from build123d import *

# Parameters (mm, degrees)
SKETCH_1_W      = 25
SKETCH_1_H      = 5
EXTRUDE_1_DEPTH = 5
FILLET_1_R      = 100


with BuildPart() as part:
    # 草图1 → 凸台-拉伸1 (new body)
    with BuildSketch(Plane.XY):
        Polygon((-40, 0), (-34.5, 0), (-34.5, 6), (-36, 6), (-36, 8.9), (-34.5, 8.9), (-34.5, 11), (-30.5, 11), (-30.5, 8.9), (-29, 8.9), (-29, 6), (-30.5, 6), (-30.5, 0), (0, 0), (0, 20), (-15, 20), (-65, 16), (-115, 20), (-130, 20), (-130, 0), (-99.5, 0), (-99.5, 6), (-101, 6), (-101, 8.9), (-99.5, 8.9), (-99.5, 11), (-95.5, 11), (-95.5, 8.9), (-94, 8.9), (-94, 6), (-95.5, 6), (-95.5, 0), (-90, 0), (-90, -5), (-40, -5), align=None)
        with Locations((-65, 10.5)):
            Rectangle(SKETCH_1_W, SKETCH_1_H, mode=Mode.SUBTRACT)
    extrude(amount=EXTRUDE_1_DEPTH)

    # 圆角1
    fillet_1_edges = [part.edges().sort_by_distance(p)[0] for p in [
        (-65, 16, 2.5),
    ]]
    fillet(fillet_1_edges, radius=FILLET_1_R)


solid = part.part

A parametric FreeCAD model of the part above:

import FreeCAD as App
import Part
import Sketcher

V = App.Vector
Q = App.Units.Quantity


def edges_at(feature, points):
    """Names of the edges that pass closest to the given points."""
    edges = feature.Shape.Edges
    near = lambda p: min(range(len(edges)), key=lambda i: edges[i].distToShape(Part.Vertex(*p))[0])
    return sorted({f"Edge{near(p) + 1}" for p in points})

doc = App.newDocument("Part")
body = doc.addObject("PartDesign::Body", "Body")

# Sketch on XY plane
sketch1 = body.newObject("Sketcher::SketchObject", "Sketch")
sketch1.AttachmentSupport = (doc.getObject("XY_Plane"), [""])
sketch1.MapMode = "FlatFace"
sketch1.addGeometry([
    Part.LineSegment(V(-40, 0, 0), V(-34.5, 0, 0)),  # 0
    Part.LineSegment(V(-34.5, 0, 0), V(-34.5, 6, 0)),  # 1
    Part.LineSegment(V(-34.5, 6, 0), V(-36, 6, 0)),  # 2
    Part.LineSegment(V(-36, 6, 0), V(-36, 8.9, 0)),  # 3
    Part.LineSegment(V(-36, 8.9, 0), V(-34.5, 8.9, 0)),  # 4
    Part.LineSegment(V(-34.5, 8.9, 0), V(-34.5, 11, 0)),  # 5
    Part.LineSegment(V(-34.5, 11, 0), V(-30.5, 11, 0)),  # 6
    Part.LineSegment(V(-30.5, 11, 0), V(-30.5, 8.9, 0)),  # 7
    Part.LineSegment(V(-30.5, 8.9, 0), V(-29, 8.9, 0)),  # 8
    Part.LineSegment(V(-29, 8.9, 0), V(-29, 6, 0)),  # 9
    Part.LineSegment(V(-29, 6, 0), V(-30.5, 6, 0)),  # 10
    Part.LineSegment(V(-30.5, 6, 0), V(-30.5, 0, 0)),  # 11
    Part.LineSegment(V(-30.5, 0, 0), V(0, 0, 0)),  # 12
    Part.LineSegment(V(0, 0, 0), V(0, 20, 0)),  # 13
    Part.LineSegment(V(0, 20, 0), V(-15, 20, 0)),  # 14
    Part.LineSegment(V(-15, 20, 0), V(-65, 16, 0)),  # 15
    Part.LineSegment(V(-65, 16, 0), V(-115, 20, 0)),  # 16
    Part.LineSegment(V(-115, 20, 0), V(-130, 20, 0)),  # 17
    Part.LineSegment(V(-130, 20, 0), V(-130, 0, 0)),  # 18
    Part.LineSegment(V(-130, 0, 0), V(-99.5, 0, 0)),  # 19
    Part.LineSegment(V(-99.5, 0, 0), V(-99.5, 6, 0)),  # 20
    Part.LineSegment(V(-99.5, 6, 0), V(-101, 6, 0)),  # 21
    Part.LineSegment(V(-101, 6, 0), V(-101, 8.9, 0)),  # 22
    Part.LineSegment(V(-101, 8.9, 0), V(-99.5, 8.9, 0)),  # 23
    Part.LineSegment(V(-99.5, 8.9, 0), V(-99.5, 11, 0)),  # 24
    Part.LineSegment(V(-99.5, 11, 0), V(-95.5, 11, 0)),  # 25
    Part.LineSegment(V(-95.5, 11, 0), V(-95.5, 8.9, 0)),  # 26
    Part.LineSegment(V(-95.5, 8.9, 0), V(-94, 8.9, 0)),  # 27
    Part.LineSegment(V(-94, 8.9, 0), V(-94, 6, 0)),  # 28
    Part.LineSegment(V(-94, 6, 0), V(-95.5, 6, 0)),  # 29
    Part.LineSegment(V(-95.5, 6, 0), V(-95.5, 0, 0)),  # 30
    Part.LineSegment(V(-95.5, 0, 0), V(-90, 0, 0)),  # 31
    Part.LineSegment(V(-90, 0, 0), V(-90, -5, 0)),  # 32
    Part.LineSegment(V(-90, -5, 0), V(-40, -5, 0)),  # 33
    Part.LineSegment(V(-40, -5, 0), V(-40, 0, 0)),  # 34
    Part.LineSegment(V(-52.5, 8, 0), V(-77.5, 8, 0)),  # 35
    Part.LineSegment(V(-77.5, 8, 0), V(-77.5, 13, 0)),  # 36
    Part.LineSegment(V(-77.5, 13, 0), V(-52.5, 13, 0)),  # 37
    Part.LineSegment(V(-52.5, 13, 0), V(-52.5, 8, 0)),  # 38
], False)
sketch1.addConstraint([
    Sketcher.Constraint("Coincident", 0, 2, 1, 1),
    Sketcher.Constraint("Coincident", 1, 2, 2, 1),
    Sketcher.Constraint("Coincident", 2, 2, 3, 1),
    Sketcher.Constraint("Coincident", 3, 2, 4, 1),
    Sketcher.Constraint("Coincident", 4, 2, 5, 1),
    Sketcher.Constraint("Coincident", 5, 2, 6, 1),
    Sketcher.Constraint("Coincident", 6, 2, 7, 1),
    Sketcher.Constraint("Coincident", 7, 2, 8, 1),
    Sketcher.Constraint("Coincident", 8, 2, 9, 1),
    Sketcher.Constraint("Coincident", 9, 2, 10, 1),
    Sketcher.Constraint("Coincident", 10, 2, 11, 1),
    Sketcher.Constraint("Coincident", 11, 2, 12, 1),
    Sketcher.Constraint("Coincident", 12, 2, 13, 1),
    Sketcher.Constraint("Coincident", 13, 2, 14, 1),
    Sketcher.Constraint("Coincident", 14, 2, 15, 1),
    Sketcher.Constraint("Coincident", 15, 2, 16, 1),
    Sketcher.Constraint("Coincident", 16, 2, 17, 1),
    Sketcher.Constraint("Coincident", 17, 2, 18, 1),
    Sketcher.Constraint("Coincident", 18, 2, 19, 1),
    Sketcher.Constraint("Coincident", 19, 2, 20, 1),
    Sketcher.Constraint("Coincident", 20, 2, 21, 1),
    Sketcher.Constraint("Coincident", 21, 2, 22, 1),
    Sketcher.Constraint("Coincident", 22, 2, 23, 1),
    Sketcher.Constraint("Coincident", 23, 2, 24, 1),
    Sketcher.Constraint("Coincident", 24, 2, 25, 1),
    Sketcher.Constraint("Coincident", 25, 2, 26, 1),
    Sketcher.Constraint("Coincident", 26, 2, 27, 1),
    Sketcher.Constraint("Coincident", 27, 2, 28, 1),
    Sketcher.Constraint("Coincident", 28, 2, 29, 1),
    Sketcher.Constraint("Coincident", 29, 2, 30, 1),
    Sketcher.Constraint("Coincident", 30, 2, 31, 1),
    Sketcher.Constraint("Coincident", 31, 2, 32, 1),
    Sketcher.Constraint("Coincident", 32, 2, 33, 1),
    Sketcher.Constraint("Coincident", 33, 2, 34, 1),
    Sketcher.Constraint("Coincident", 34, 2, 0, 1),
    Sketcher.Constraint("Coincident", 35, 2, 36, 1),
    Sketcher.Constraint("Coincident", 36, 2, 37, 1),
    Sketcher.Constraint("Coincident", 37, 2, 38, 1),
    Sketcher.Constraint("Coincident", 38, 2, 35, 1),
    Sketcher.Constraint("Horizontal", 0),
    Sketcher.Constraint("Vertical", 1),
    Sketcher.Constraint("Horizontal", 2),
    Sketcher.Constraint("Vertical", 3),
    Sketcher.Constraint("Horizontal", 4),
    Sketcher.Constraint("Vertical", 5),
    Sketcher.Constraint("Horizontal", 6),
    Sketcher.Constraint("Vertical", 7),
    Sketcher.Constraint("Horizontal", 8),
    Sketcher.Constraint("Vertical", 9),
    Sketcher.Constraint("Horizontal", 10),
    Sketcher.Constraint("Vertical", 11),
    Sketcher.Constraint("Horizontal", 12),
    Sketcher.Constraint("Vertical", 13),
    Sketcher.Constraint("Horizontal", 14),
    Sketcher.Constraint("Horizontal", 17),
    Sketcher.Constraint("Vertical", 18),
    Sketcher.Constraint("Horizontal", 19),
    Sketcher.Constraint("Vertical", 20),
    Sketcher.Constraint("Horizontal", 21),
    Sketcher.Constraint("Vertical", 22),
    Sketcher.Constraint("Horizontal", 23),
    Sketcher.Constraint("Vertical", 24),
    Sketcher.Constraint("Horizontal", 25),
    Sketcher.Constraint("Vertical", 26),
    Sketcher.Constraint("Horizontal", 27),
    Sketcher.Constraint("Vertical", 28),
    Sketcher.Constraint("Horizontal", 29),
    Sketcher.Constraint("Vertical", 30),
    Sketcher.Constraint("Horizontal", 31),
    Sketcher.Constraint("Vertical", 32),
    Sketcher.Constraint("Horizontal", 33),
    Sketcher.Constraint("Vertical", 34),
    Sketcher.Constraint("Horizontal", 35),
    Sketcher.Constraint("Vertical", 36),
    Sketcher.Constraint("Horizontal", 37),
    Sketcher.Constraint("Vertical", 38),
    Sketcher.Constraint("Coincident", 12, 2, -1, 1),
    Sketcher.Constraint("PointOnObject", 0, 2, -1),
    Sketcher.Constraint("PointOnObject", 18, 2, -1),
    Sketcher.Constraint("PointOnObject", 30, 2, -1),
    Sketcher.Constraint("Horizontal", 4, 2, 7, 2),
    Sketcher.Constraint("Horizontal", 2, 2, 9, 2),
    Sketcher.Constraint("Horizontal", 14, 2, 16, 2),
    Sketcher.Constraint("Horizontal", 10, 2, 20, 2),
    Sketcher.Constraint("Horizontal", 8, 2, 22, 2),
    Sketcher.Constraint("Horizontal", 6, 2, 24, 2),
    Sketcher.Constraint("Horizontal", 23, 2, 26, 2),
    Sketcher.Constraint("Horizontal", 21, 2, 28, 2),
    Sketcher.Constraint("Vertical", 1, 2, 4, 2),
    Sketcher.Constraint("Vertical", 7, 2, 10, 2),
    Sketcher.Constraint("Vertical", 20, 2, 23, 2),
    Sketcher.Constraint("Vertical", 26, 2, 29, 2),
    Sketcher.Constraint("Equal", 4, 8),
    Sketcher.Constraint("Equal", 14, 17),
    Sketcher.Constraint("Equal", 12, 19),
    Sketcher.Constraint("Equal", 10, 21),
    Sketcher.Constraint("Equal", 6, 25),
    Sketcher.Constraint("Equal", 23, 27),
    Sketcher.Constraint("Equal", 0, 31),
    Sketcher.Constraint("Equal", 34, 36),
    Sketcher.Constraint("Equal", 15, 16),
    Sketcher.Constraint("DistanceX", 6, 1, 6, 2, Q("4 mm")),
    Sketcher.Constraint("DistanceX", 14, 2, 14, 1, Q("15 mm")),
    Sketcher.Constraint("DistanceX", 33, 1, 33, 2, Q("50 mm")),
    Sketcher.Constraint("DistanceX", 35, 2, 35, 1, Q("25 mm")),
    Sketcher.Constraint("DistanceY", 1, 1, 1, 2, Q("6 mm")),
    Sketcher.Constraint("DistanceY", 13, 1, 13, 2, Q("20 mm")),
    Sketcher.Constraint("DistanceY", 32, 2, 32, 1, Q("5 mm")),
    Sketcher.Constraint("DistanceX", 0, 1, 0, 2, Q("5.5 mm")),
    Sketcher.Constraint("DistanceX", 2, 2, 2, 1, Q("1.5 mm")),
    Sketcher.Constraint("DistanceX", 12, 1, 12, 2, Q("30.5 mm")),
    Sketcher.Constraint("DistanceY", 3, 1, 3, 2, Q("2.9 mm")),
    Sketcher.Constraint("DistanceY", 5, 1, 5, 2, Q("2.1 mm")),
    Sketcher.Constraint("DistanceY", -1, 1, 15, 2, Q("16 mm")),
    Sketcher.Constraint("DistanceY", -1, 1, 35, 2, Q("8 mm")),
    Sketcher.Constraint("DistanceX", 26, 2, 35, 2, Q("18 mm")),
])
pad1 = body.newObject("PartDesign::Pad", "Pad")
pad1.Profile = sketch1
pad1.Length = 5
doc.recompute()

fillet = body.newObject("PartDesign::Fillet", "Fillet")
fillet.Base = (pad1, edges_at(pad1, [(-65, 16, 2.5)]))
fillet.Radius = 100

doc.recompute()
